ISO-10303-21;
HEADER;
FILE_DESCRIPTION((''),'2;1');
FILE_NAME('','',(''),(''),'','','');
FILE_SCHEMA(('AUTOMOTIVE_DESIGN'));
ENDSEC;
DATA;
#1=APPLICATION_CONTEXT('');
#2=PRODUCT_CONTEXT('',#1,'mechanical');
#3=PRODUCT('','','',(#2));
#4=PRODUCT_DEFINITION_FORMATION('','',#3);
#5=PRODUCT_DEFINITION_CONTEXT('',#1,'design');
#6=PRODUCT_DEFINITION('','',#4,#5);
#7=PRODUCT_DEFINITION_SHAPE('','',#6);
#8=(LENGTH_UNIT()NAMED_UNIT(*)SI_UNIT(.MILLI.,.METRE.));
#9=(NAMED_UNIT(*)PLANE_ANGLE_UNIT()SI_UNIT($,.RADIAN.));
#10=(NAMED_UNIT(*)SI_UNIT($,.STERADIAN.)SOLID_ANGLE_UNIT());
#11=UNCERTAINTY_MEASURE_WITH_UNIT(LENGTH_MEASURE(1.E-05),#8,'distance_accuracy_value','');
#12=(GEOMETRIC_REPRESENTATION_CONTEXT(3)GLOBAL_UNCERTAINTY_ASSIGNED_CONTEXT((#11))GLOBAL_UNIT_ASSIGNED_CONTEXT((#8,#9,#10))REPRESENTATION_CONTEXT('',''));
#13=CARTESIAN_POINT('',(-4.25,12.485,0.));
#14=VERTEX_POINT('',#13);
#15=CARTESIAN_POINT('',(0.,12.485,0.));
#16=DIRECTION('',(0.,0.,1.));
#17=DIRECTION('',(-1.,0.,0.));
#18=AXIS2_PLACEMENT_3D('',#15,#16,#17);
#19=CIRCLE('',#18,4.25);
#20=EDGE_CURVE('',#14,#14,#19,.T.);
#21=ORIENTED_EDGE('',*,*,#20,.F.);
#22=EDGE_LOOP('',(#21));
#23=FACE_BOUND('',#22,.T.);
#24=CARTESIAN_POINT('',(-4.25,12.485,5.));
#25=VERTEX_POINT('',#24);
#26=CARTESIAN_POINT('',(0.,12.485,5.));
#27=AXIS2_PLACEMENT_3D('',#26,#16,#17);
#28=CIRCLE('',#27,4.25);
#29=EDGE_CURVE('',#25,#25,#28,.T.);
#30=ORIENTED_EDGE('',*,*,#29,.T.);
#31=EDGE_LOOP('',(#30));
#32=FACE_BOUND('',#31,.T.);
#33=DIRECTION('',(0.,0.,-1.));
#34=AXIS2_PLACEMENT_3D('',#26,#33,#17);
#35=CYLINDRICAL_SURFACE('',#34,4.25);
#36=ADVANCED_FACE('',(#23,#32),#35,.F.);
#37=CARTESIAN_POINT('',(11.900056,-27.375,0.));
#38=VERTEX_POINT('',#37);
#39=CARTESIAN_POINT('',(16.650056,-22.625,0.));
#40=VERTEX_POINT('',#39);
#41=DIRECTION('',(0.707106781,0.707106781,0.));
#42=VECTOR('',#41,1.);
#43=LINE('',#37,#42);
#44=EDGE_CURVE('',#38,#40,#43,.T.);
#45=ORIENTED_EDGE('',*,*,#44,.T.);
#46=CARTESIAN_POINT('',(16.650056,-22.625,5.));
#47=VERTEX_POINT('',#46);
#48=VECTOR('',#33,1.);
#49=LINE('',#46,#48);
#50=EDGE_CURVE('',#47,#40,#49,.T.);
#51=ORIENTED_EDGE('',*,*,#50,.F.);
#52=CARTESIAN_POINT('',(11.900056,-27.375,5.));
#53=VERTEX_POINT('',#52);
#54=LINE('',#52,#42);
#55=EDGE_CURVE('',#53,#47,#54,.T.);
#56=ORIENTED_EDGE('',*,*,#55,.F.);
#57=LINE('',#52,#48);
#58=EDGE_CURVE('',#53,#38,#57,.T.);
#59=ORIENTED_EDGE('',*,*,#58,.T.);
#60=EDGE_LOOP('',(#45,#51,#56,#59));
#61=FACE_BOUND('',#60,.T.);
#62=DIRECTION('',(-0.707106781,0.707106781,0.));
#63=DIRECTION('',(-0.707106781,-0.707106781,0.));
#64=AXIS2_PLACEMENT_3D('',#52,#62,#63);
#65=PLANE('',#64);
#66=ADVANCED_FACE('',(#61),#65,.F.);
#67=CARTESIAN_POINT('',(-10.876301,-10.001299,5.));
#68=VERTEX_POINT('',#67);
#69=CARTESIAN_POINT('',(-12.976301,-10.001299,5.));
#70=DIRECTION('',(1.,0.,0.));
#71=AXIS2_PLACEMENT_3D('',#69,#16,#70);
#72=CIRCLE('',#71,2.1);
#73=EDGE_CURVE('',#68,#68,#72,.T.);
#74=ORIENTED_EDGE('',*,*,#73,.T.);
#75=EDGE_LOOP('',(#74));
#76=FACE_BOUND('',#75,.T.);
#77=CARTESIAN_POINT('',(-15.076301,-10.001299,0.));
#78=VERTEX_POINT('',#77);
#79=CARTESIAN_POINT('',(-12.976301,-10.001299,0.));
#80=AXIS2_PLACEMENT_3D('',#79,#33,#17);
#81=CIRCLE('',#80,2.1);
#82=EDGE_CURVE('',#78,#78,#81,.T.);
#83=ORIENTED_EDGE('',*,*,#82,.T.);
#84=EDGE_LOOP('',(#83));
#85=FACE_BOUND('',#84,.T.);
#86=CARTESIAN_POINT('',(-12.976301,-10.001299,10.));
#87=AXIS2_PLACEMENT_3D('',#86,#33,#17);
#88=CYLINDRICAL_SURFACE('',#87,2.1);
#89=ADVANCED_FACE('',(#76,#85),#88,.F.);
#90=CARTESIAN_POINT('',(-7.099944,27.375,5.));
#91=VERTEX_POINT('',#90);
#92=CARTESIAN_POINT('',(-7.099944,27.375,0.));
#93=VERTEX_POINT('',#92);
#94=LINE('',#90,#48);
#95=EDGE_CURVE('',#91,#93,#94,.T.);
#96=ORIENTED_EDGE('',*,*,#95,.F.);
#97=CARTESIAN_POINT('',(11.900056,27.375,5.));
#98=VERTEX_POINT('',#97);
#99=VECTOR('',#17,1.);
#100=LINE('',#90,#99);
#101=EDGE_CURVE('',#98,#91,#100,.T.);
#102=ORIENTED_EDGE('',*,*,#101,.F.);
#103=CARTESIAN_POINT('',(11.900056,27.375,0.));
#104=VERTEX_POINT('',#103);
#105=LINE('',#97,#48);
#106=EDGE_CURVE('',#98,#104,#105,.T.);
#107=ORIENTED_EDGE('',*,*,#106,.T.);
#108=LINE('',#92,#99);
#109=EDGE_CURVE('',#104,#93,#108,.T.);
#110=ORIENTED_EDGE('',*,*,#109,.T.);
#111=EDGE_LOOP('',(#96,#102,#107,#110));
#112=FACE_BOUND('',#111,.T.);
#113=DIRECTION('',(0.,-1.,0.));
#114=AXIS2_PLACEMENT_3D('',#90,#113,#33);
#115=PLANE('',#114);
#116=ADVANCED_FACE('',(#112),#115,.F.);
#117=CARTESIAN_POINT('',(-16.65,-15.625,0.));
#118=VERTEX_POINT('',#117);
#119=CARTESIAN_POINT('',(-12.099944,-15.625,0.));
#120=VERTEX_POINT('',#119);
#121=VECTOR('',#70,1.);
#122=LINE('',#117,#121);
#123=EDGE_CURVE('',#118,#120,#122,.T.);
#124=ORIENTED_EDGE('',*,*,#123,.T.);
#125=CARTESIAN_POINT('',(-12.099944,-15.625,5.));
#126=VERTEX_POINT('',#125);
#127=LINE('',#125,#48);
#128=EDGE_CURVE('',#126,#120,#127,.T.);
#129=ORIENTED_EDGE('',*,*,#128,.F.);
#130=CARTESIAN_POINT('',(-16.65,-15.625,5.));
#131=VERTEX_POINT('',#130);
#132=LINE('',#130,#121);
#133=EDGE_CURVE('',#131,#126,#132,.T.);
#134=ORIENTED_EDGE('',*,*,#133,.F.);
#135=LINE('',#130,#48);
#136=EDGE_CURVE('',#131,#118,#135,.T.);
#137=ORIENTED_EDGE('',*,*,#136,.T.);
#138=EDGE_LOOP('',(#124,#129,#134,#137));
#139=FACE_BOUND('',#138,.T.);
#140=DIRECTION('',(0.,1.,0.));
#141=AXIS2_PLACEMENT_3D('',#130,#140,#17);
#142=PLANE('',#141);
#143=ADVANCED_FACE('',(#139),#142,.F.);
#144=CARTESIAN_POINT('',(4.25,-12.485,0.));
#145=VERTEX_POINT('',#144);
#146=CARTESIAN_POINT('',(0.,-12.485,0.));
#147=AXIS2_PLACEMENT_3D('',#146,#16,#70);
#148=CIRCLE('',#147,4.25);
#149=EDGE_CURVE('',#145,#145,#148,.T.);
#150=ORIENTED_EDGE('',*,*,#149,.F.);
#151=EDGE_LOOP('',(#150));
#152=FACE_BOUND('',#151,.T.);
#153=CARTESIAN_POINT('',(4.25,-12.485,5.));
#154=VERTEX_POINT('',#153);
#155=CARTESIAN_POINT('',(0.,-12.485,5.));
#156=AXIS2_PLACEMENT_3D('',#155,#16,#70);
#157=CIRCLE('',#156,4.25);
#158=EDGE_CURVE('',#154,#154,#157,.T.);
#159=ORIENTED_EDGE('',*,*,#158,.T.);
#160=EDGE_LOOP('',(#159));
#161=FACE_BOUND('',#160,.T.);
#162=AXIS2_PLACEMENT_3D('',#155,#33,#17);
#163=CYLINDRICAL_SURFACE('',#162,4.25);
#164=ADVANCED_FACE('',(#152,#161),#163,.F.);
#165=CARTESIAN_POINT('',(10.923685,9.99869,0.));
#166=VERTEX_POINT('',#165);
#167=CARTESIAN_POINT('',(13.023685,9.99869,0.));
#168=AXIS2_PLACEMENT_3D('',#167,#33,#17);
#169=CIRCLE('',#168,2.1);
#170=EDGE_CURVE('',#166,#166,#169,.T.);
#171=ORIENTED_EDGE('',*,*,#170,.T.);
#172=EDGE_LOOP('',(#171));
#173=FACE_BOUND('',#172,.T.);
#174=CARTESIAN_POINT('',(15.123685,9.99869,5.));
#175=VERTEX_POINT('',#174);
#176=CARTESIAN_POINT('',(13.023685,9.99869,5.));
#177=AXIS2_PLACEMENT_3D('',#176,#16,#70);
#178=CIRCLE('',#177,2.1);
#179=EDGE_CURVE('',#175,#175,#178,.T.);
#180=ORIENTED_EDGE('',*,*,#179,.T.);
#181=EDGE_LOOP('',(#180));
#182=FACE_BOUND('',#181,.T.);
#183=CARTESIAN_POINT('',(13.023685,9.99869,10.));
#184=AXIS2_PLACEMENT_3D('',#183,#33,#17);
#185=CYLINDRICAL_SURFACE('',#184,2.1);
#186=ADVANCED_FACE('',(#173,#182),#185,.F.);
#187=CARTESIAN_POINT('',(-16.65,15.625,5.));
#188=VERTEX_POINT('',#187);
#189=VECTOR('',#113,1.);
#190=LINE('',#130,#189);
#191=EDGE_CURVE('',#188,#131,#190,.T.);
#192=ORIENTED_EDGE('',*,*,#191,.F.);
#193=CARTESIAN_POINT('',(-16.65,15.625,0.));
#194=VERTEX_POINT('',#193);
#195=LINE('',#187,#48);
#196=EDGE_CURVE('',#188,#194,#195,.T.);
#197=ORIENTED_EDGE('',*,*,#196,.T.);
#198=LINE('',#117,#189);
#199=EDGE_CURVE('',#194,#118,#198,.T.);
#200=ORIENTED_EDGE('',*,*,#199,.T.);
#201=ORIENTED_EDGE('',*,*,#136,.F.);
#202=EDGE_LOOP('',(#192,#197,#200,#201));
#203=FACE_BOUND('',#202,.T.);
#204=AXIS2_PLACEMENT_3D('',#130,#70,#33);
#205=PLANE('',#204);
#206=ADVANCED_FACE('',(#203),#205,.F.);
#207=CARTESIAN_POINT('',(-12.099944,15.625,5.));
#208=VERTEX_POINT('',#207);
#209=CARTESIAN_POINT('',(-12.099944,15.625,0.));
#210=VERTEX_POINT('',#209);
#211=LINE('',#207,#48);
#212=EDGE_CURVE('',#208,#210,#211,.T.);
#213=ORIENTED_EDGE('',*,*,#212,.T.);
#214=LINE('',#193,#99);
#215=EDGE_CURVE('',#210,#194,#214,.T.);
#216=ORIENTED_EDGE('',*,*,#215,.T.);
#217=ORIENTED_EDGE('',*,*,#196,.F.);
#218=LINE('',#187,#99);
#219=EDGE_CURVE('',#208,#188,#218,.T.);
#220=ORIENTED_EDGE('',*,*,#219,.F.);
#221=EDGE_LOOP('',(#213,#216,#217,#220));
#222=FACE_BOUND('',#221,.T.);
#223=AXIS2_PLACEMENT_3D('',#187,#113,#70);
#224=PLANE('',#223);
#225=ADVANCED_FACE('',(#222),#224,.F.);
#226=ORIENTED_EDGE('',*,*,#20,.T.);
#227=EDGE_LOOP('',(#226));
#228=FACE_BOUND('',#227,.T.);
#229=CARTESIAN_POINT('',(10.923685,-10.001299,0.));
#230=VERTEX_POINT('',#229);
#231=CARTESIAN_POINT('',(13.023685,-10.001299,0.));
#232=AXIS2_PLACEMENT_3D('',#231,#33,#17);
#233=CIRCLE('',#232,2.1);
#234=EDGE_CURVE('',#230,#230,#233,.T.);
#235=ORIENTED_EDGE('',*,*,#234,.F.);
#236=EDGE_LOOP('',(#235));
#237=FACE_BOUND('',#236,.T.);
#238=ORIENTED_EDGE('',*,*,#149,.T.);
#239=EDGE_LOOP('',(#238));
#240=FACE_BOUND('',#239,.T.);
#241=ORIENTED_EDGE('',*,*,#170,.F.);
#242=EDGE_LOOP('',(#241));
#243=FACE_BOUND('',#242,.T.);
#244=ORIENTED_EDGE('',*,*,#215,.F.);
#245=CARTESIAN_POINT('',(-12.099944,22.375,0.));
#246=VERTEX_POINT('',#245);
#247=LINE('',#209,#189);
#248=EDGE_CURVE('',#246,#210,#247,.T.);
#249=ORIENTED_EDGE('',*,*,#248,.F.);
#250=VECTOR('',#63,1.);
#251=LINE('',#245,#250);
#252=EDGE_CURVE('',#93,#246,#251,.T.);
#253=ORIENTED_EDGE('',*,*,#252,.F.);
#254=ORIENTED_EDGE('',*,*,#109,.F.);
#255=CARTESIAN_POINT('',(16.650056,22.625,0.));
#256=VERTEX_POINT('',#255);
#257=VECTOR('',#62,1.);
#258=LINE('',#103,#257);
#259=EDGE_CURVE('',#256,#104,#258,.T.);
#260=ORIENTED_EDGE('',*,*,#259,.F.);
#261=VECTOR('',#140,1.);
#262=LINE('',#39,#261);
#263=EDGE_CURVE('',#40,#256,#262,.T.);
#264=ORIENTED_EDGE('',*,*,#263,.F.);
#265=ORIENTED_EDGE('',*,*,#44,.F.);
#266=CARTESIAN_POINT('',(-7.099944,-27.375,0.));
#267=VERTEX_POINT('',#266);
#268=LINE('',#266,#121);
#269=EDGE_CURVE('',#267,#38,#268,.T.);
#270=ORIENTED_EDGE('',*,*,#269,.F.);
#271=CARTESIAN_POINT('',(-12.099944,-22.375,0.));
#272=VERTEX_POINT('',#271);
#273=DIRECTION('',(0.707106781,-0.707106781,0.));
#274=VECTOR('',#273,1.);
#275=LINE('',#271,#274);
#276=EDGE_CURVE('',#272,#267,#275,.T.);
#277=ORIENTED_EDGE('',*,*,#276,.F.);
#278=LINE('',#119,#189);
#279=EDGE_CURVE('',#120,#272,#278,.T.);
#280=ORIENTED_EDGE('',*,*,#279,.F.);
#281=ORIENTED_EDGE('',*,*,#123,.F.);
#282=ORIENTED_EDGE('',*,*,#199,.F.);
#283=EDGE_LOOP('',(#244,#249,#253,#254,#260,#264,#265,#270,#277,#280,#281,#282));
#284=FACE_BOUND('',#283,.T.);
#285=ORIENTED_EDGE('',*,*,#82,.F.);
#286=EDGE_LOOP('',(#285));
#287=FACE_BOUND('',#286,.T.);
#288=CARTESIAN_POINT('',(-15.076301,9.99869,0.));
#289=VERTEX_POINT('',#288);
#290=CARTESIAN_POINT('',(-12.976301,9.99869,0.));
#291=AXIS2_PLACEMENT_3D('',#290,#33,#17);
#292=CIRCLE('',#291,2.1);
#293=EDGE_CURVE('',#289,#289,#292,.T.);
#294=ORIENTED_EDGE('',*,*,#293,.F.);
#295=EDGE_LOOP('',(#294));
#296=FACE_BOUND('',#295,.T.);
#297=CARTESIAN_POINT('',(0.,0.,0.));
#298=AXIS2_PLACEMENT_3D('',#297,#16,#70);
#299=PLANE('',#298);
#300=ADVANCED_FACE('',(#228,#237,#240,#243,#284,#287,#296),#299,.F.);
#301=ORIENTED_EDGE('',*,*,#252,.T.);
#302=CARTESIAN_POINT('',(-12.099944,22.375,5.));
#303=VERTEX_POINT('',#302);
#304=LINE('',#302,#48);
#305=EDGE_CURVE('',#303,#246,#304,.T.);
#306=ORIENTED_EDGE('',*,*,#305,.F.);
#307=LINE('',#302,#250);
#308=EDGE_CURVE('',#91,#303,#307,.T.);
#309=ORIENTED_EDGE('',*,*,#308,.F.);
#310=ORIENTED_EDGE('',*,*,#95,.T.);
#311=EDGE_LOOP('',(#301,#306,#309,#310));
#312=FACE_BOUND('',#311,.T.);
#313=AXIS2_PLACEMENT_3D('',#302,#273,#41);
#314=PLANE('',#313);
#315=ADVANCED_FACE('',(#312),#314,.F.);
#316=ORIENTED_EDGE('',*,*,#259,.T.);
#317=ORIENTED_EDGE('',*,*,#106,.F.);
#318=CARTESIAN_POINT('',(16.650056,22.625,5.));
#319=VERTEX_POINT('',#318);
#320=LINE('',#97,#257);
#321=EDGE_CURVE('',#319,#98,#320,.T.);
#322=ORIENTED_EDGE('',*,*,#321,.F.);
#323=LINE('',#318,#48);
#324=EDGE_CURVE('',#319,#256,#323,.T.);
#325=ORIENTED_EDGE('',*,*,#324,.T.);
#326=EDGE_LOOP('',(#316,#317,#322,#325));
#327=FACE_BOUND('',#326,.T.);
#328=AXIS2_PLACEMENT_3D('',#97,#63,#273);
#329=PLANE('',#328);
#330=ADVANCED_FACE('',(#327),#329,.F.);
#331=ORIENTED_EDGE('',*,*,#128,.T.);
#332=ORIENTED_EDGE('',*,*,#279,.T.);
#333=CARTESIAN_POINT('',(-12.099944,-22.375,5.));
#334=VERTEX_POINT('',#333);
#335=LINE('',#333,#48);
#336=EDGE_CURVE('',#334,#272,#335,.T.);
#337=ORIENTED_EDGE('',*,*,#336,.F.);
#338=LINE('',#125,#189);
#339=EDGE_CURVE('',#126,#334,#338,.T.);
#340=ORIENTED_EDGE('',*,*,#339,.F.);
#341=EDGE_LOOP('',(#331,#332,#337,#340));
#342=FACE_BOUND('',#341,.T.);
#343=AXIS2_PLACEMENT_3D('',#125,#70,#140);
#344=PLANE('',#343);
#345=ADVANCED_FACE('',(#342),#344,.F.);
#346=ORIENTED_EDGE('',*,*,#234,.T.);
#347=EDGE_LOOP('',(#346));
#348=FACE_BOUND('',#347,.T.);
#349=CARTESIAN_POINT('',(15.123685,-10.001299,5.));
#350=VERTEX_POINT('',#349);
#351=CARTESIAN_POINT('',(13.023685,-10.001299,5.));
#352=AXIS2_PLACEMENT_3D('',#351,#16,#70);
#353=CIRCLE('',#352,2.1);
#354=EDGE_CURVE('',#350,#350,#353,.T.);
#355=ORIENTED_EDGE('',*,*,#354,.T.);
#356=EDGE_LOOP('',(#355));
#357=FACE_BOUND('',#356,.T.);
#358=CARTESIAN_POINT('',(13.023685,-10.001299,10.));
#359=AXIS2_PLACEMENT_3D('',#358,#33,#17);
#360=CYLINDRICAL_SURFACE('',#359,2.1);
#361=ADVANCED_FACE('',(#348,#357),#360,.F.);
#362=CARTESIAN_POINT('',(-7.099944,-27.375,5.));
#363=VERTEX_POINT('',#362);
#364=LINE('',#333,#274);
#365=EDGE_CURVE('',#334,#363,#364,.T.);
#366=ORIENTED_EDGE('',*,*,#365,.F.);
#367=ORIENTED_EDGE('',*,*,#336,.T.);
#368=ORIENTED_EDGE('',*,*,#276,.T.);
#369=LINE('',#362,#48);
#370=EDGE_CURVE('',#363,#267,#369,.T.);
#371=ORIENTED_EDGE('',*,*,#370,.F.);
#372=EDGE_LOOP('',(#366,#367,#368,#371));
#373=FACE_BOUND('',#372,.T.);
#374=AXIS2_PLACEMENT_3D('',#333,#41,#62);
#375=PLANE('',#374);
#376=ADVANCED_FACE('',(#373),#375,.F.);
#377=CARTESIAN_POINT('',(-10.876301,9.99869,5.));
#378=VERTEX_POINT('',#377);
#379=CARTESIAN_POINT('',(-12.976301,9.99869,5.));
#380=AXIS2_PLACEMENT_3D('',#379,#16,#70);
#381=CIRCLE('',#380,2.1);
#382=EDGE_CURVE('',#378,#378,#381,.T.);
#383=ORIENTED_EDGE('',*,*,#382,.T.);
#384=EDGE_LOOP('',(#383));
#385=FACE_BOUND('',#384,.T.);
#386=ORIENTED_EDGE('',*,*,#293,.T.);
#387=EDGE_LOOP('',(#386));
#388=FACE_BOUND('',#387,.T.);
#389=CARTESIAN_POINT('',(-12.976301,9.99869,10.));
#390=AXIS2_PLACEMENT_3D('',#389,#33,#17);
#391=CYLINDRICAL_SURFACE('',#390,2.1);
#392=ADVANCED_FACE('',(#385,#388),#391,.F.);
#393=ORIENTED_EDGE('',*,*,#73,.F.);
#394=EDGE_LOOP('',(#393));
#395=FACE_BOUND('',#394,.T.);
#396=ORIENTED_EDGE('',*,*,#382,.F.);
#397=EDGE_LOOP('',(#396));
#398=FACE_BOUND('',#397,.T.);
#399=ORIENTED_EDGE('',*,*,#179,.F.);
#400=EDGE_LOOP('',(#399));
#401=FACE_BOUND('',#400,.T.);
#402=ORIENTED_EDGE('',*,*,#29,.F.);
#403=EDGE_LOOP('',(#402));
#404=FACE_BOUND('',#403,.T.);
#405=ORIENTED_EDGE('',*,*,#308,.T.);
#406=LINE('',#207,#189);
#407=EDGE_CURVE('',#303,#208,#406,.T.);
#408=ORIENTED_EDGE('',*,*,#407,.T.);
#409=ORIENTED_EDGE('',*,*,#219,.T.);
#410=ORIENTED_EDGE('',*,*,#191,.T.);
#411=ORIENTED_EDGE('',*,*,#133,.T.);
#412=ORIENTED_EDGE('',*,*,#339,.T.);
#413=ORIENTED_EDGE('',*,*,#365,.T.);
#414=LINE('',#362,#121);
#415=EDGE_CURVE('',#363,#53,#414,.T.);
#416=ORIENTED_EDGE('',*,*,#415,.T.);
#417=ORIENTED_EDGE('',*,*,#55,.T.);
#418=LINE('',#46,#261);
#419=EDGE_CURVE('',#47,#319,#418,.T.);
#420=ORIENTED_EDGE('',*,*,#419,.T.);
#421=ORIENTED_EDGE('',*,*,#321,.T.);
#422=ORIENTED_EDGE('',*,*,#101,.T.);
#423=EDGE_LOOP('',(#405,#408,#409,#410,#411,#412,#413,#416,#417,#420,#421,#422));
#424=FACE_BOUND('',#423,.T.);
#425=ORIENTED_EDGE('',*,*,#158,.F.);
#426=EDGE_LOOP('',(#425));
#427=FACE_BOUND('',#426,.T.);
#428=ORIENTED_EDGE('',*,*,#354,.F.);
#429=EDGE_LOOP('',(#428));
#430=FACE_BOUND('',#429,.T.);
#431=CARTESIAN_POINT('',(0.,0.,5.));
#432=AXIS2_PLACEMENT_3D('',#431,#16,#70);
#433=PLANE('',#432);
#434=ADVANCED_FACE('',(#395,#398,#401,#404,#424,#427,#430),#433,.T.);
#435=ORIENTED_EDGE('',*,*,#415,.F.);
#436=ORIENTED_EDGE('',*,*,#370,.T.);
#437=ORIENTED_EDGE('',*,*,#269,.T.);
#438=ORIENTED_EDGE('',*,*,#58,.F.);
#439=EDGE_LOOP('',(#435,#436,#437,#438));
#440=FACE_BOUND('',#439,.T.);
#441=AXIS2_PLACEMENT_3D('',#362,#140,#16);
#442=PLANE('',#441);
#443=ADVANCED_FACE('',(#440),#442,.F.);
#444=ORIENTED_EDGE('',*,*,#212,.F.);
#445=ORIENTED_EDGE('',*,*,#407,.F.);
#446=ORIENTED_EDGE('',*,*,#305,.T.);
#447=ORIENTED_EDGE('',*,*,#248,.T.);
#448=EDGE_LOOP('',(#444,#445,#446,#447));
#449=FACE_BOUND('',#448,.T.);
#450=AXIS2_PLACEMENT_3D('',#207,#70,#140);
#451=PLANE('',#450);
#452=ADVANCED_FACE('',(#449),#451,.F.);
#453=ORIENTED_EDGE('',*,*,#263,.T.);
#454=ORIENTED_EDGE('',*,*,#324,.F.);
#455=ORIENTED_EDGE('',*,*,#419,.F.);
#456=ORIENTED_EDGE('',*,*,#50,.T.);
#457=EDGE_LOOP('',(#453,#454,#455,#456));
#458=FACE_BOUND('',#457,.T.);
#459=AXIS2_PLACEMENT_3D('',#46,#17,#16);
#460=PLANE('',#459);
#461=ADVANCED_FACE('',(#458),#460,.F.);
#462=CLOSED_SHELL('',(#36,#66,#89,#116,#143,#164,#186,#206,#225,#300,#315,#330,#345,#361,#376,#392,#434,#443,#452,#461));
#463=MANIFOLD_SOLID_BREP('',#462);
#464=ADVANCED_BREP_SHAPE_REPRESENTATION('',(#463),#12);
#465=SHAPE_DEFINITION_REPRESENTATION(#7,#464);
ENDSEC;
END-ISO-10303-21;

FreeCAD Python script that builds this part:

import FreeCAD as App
import Part
import Sketcher
from FreeCAD import Vector
Q = App.Units.Quantity


def add_polygon(sketch, points):
    """Adds a closed chain of lines whose ends are joined by coincident constraints."""
    first, n = sketch.GeometryCount, len(points)
    for a, b in zip(points, points[1:] + points[:1]):
        sketch.addGeometry(Part.LineSegment(App.Vector(*a, 0), App.Vector(*b, 0)), False)
    for i in range(n):
        sketch.addConstraint(Sketcher.Constraint("Coincident", first + i, 2, first + (i + 1) % n, 1))

doc = App.newDocument("Part")
params = doc.addObject("Spreadsheet::Sheet", "Params")
for row, (alias, value) in enumerate([
    ("sketch1_diameter", "8.5 mm"),
    ("sketch1_width", "19 mm"),
    ("sketch1_height", "45.25 mm"),
    ("pad1_length", "5 mm"),
    ("sketch2_diameter", "4.2 mm"),
    ("pocket1_length", "10 mm"),
], start=1):
    params.set(f"A{row}", alias)
    params.set(f"B{row}", "=" + value)
    params.setAlias(f"B{row}", alias)

body = doc.addObject("PartDesign::Body", "Body")

sketch1 = body.newObject("Sketcher::SketchObject", "Sketch")
sketch1.AttachmentSupport = (doc.getObject("XY_Plane"), [""])
sketch1.MapMode = "FlatFace"
add_polygon(sketch1, [(11.900056, -27.375), (16.650056, -22.625), (16.650056, 22.625), (11.900056, 27.375), (-7.099944, 27.375), (-12.099944, 22.375), (-12.099944, 15.625), (-16.65, 15.625), (-16.65, -15.625), (-12.099944, -15.625), (-12.099944, -22.375), (-7.099944, -27.375)])
sketch1.addGeometry(Part.Circle(Vector(0, -12.485, 0), Vector(0, 0, 1), 4.25), False)
sketch1.addGeometry(Part.Circle(Vector(0, 12.485, 0), Vector(0, 0, 1), 4.25), False)
sketch1.addConstraint(Sketcher.Constraint("Vertical", 1))
sketch1.addConstraint(Sketcher.Constraint("Horizontal", 3))
sketch1.addConstraint(Sketcher.Constraint("Vertical", 5))
sketch1.addConstraint(Sketcher.Constraint("Horizontal", 6))
sketch1.addConstraint(Sketcher.Constraint("Vertical", 7))
sketch1.addConstraint(Sketcher.Constraint("Horizontal", 8))
sketch1.addConstraint(Sketcher.Constraint("Vertical", 9))
sketch1.addConstraint(Sketcher.Constraint("Horizontal", 11))
sketch1.addConstraint(Sketcher.Constraint("Equal", 12, 13))
sketch1.addConstraint(Sketcher.Constraint("Symmetric", 12, 3, 13, 3, -1, 1))
sketch1.addConstraint(Sketcher.Constraint("Symmetric", 5, 2, 8, 2, -1))
sketch1.addConstraint(Sketcher.Constraint("Symmetric", 3, 2, 10, 2, -1))
sketch1.addConstraint(Sketcher.Constraint("PointOnObject", 12, 3, -2))
sketch1.addConstraint(Sketcher.Constraint("Perpendicular", 0, 2))
sketch1.addConstraint(Sketcher.Constraint("Perpendicular", 2, 4))
sketch1.addConstraint(Sketcher.Constraint("Perpendicular", 4, 10))
sketch1.addConstraint(Sketcher.Constraint("Vertical", 2, 2, 11, 2))
sketch1.addConstraint(Sketcher.Constraint("Equal", 5, 9))
sketch1.addConstraint(Sketcher.Constraint("Diameter", 12, Q("8.5 mm")))
sketch1.addConstraint(Sketcher.Constraint("DistanceX", 3, 2, 3, 1, Q("19 mm")))
sketch1.addConstraint(Sketcher.Constraint("DistanceY", 0, 2, 2, 2, Q("50 mm")))
sketch1.addConstraint(Sketcher.Constraint("DistanceX", 4, 2, 3, 2, Q("5 mm")))
sketch1.addConstraint(Sketcher.Constraint("DistanceY", 5, 2, 1, 2, Q("7 mm")))
sketch1.addConstraint(Sketcher.Constraint("DistanceY", 1, 1, 1, 2, Q("45.25 mm")))
sketch1.addConstraint(Sketcher.Constraint("DistanceX", 6, 2, -1, 1, Q("16.65 mm")))
sketch1.addConstraint(Sketcher.Constraint("DistanceY", 12, 3, 13, 3, Q("24.97 mm")))
sketch1.addConstraint(Sketcher.Constraint("DistanceX", 6, 2, 6, 1, Q("4.550056 mm")))
sketch1.setExpression("Constraints[30]", "Params.sketch1_diameter")
sketch1.setExpression("Constraints[31]", "Params.sketch1_width")
sketch1.setExpression("Constraints[35]", "Params.sketch1_height")
pad1 = body.newObject("PartDesign::Pad", "Pad")
pad1.Profile = sketch1
pad1.setExpression("Length", "Params.pad1_length")

sketch2 = body.newObject("Sketcher::SketchObject", "Sketch001")
sketch2.AttachmentSupport = (doc.getObject("XY_Plane"), [""])
sketch2.MapMode = "FlatFace"
sketch2.addGeometry(Part.Circle(Vector(13.023685, -10.001299, 0), Vector(0, 0, 1), 2.1), False)
sketch2.addGeometry(Part.Circle(Vector(13.023685, 9.99869, 0), Vector(0, 0, 1), 2.1), False)
sketch2.addGeometry(Part.Circle(Vector(-12.976301, -10.001299, 0), Vector(0, 0, 1), 2.1), False)
sketch2.addGeometry(Part.Circle(Vector(-12.976301, 9.99869, 0), Vector(0, 0, 1), 2.1), False)
sketch2.addConstraint(Sketcher.Constraint("Equal", 0, 1))
sketch2.addConstraint(Sketcher.Constraint("Equal", 1, 2))
sketch2.addConstraint(Sketcher.Constraint("Equal", 2, 3))
sketch2.addConstraint(Sketcher.Constraint("Horizontal", 0, 3, 2, 3))
sketch2.addConstraint(Sketcher.Constraint("Horizontal", 1, 3, 3, 3))
sketch2.addConstraint(Sketcher.Constraint("Vertical", 0, 3, 1, 3))
sketch2.addConstraint(Sketcher.Constraint("Vertical", 2, 3, 3, 3))
sketch2.addConstraint(Sketcher.Constraint("Diameter", 0, Q("4.2 mm")))
sketch2.addConstraint(Sketcher.Constraint("DistanceY", 0, 3, -1, 1, Q("10.001299 mm")))
sketch2.addConstraint(Sketcher.Constraint("DistanceX", 2, 3, -1, 1, Q("12.976301 mm")))
sketch2.addConstraint(Sketcher.Constraint("DistanceY", -1, 1, 1, 3, Q("9.99869 mm")))
sketch2.addConstraint(Sketcher.Constraint("DistanceX", -1, 1, 0, 3, Q("13.023685 mm")))
sketch2.setExpression("Constraints[7]", "Params.sketch2_diameter")
pocket1 = body.newObject("PartDesign::Pocket", "Pocket")
pocket1.Profile = sketch2
pocket1.setExpression("Length", "Params.pocket1_length")
pocket1.Reversed = True

doc.recompute()
